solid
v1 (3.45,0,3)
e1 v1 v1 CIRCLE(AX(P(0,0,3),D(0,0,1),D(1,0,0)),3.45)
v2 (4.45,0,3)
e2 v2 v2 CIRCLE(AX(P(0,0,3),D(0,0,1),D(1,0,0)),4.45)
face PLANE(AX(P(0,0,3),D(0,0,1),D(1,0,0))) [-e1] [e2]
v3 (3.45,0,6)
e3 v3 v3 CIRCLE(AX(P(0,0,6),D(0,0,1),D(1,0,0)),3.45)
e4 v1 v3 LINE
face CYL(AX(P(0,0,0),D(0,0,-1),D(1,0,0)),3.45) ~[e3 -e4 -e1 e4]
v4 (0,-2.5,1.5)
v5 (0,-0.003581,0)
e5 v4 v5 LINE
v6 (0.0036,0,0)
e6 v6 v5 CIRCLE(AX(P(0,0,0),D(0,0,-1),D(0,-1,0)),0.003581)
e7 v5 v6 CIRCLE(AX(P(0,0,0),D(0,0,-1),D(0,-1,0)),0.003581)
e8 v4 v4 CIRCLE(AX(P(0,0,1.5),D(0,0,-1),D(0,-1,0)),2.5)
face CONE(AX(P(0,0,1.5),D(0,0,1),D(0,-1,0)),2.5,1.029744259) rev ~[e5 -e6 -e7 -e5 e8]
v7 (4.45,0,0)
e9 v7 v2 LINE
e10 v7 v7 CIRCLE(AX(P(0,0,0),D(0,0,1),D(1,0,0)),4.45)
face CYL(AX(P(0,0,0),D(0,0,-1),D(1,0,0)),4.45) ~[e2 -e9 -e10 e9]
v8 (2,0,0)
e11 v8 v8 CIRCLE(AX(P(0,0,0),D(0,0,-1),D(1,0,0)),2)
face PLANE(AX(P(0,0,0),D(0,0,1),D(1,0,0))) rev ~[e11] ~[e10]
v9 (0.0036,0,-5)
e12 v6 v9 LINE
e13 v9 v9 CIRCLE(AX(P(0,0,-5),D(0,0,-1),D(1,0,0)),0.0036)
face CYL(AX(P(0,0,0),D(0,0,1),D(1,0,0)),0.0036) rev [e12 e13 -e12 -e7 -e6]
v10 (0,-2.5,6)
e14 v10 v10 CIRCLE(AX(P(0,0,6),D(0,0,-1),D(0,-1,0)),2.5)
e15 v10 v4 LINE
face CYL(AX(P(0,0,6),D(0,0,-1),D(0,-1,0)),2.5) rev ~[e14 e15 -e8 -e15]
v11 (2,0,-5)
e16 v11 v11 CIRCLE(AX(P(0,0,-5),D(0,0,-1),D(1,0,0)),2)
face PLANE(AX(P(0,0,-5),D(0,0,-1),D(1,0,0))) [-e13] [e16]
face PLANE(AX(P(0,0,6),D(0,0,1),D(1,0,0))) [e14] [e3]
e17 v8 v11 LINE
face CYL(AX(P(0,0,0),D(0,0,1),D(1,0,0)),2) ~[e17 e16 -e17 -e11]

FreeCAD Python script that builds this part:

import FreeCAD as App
import Part
import Sketcher
from FreeCAD import Vector
Q = App.Units.Quantity

doc = App.newDocument("Part")
body = doc.addObject("PartDesign::Body", "Body")

sketch1 = body.newObject("Sketcher::SketchObject", "Sketch")
sketch1.AttachmentSupport = (doc.getObject("XY_Plane"), [""])
sketch1.MapMode = "FlatFace"
sketch1.addGeometry(Part.Circle(Vector(0, 0, 0), Vector(0, 0, 1), 4.5), False)
sketch1.addGeometry(Part.Circle(Vector(0, 0, 0), Vector(0, 0, 1), 3.5), False)
sketch1.addConstraint(Sketcher.Constraint("Coincident", 0, 3, -1, 1))
sketch1.addConstraint(Sketcher.Constraint("Coincident", 1, 3, -1, 1))
sketch1.addConstraint(Sketcher.Constraint("Diameter", 1, Q("6.9 mm")))
sketch1.addConstraint(Sketcher.Constraint("Diameter", 0, Q("8.9 mm")))
pad1 = body.newObject("PartDesign::Pad", "Pad")
pad1.Profile = sketch1
pad1.Length = 3

sketch2 = body.newObject("Sketcher::SketchObject", "Sketch001")
sketch2.AttachmentSupport = (doc.getObject("XY_Plane"), [""])
sketch2.MapMode = "FlatFace"
sketch2.addGeometry(Part.Circle(Vector(0, 0, 0), Vector(0, 0, 1), 3.5), False)
sketch2.addConstraint(Sketcher.Constraint("Coincident", 0, 3, -1, 1))
sketch2.addConstraint(Sketcher.Constraint("Diameter", 0, Q("6.9 mm")))
pad2 = body.newObject("PartDesign::Pad", "Pad001")
pad2.Profile = sketch2
pad2.Length = 6

sketch3 = body.newObject("Sketcher::SketchObject", "Sketch002")
sketch3.AttachmentSupport = (doc.getObject("XY_Plane"), [""])
sketch3.MapMode = "FlatFace"
sketch3.AttachmentOffset = App.Placement(Vector(0, 0, 6), App.Rotation())
sketch3.addGeometry(Part.Circle(Vector(0, 0, 0), Vector(0, 0, 1), 2.5), False)
sketch3.addConstraint(Sketcher.Constraint("Coincident", 0, 3, -1, 1))
sketch3.addConstraint(Sketcher.Constraint("Diameter", 0, Q("5 mm")))
doc.recompute()
hole = body.newObject("PartDesign::Hole", "Hole")
hole.Profile = sketch3
hole.ThreadType = "None"
hole.Diameter = 5
hole.DepthType = "Dimension"
hole.Depth = 4.5
hole.DrillPoint = "Angled"
hole.DrillPointAngle = 118

sketch4 = body.newObject("Sketcher::SketchObject", "Sketch003")
sketch4.AttachmentSupport = (doc.getObject("XY_Plane"), [""])
sketch4.MapMode = "FlatFace"
sketch4.addGeometry(Part.Circle(Vector(0, 0, 0), Vector(0, 0, 1), 2), False)
sketch4.addGeometry(Part.Circle(Vector(0, 0, 0), Vector(0, 0, 1), 0.0036), False)
sketch4.addConstraint(Sketcher.Constraint("Coincident", 0, 3, -1, 1))
sketch4.addConstraint(Sketcher.Constraint("Coincident", 1, 3, -1, 1))
sketch4.addConstraint(Sketcher.Constraint("Diameter", 0, Q("4 mm")))
sketch4.addConstraint(Sketcher.Constraint("Diameter", 1, Q("0.0072 mm")))
pad3 = body.newObject("PartDesign::Pad", "Pad002")
pad3.Profile = sketch4
pad3.Length = 5
pad3.Reversed = True

doc.recompute()
